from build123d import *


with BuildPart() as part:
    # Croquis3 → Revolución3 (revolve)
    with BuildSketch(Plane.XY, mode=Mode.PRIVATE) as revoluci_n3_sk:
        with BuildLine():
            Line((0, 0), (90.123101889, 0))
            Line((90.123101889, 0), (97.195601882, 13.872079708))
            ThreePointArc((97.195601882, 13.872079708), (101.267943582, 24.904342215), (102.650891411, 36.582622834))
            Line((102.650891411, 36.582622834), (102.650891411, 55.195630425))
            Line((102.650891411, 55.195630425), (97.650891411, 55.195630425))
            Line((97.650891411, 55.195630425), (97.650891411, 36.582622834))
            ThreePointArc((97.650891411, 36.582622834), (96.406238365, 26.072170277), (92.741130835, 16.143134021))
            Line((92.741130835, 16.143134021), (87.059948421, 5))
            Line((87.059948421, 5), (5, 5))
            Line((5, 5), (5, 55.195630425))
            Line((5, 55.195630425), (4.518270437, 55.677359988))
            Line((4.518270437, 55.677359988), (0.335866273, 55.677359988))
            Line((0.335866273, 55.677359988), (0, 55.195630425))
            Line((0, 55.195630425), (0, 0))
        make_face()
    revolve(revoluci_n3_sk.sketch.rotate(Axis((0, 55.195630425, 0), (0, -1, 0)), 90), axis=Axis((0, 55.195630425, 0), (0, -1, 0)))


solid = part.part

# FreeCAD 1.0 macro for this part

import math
import FreeCAD as App
import Part
import Sketcher

V = App.Vector
Q = App.Units.Quantity

doc = App.newDocument("Part")
body = doc.addObject("PartDesign::Body", "Body")

sketch1 = doc.addObject("Sketcher::SketchObject", "Sketch")
body.addObject(sketch1)
sketch1.AttachmentSupport = (doc.XY_Plane, [""])
sketch1.MapMode = "FlatFace"
sketch1.addGeometry([
    Part.LineSegment(V(0, 0, 0), V(90.1, 0, 0)),
    Part.LineSegment(V(90.1, 0, 0), V(97.2, 13.9, 0)),
    Part.ArcOfCircle(Part.Circle(V(52.7, 36.6, 0), V(0, 0, 1), 50), math.radians(-27), math.radians(0)),
    Part.LineSegment(V(102.7, 36.6, 0), V(102.7, 55.2, 0)),
    Part.LineSegment(V(102.7, 55.2, 0), V(97.7, 55.2, 0)),
    Part.LineSegment(V(97.7, 55.2, 0), V(97.7, 36.6, 0)),
    Part.ArcOfCircle(Part.Circle(V(52.7, 36.6, 0), V(0, 0, 1), 45), math.radians(-27), math.radians(0)),
    Part.LineSegment(V(92.7, 16.1, 0), V(87.1, 5, 0)),
    Part.LineSegment(V(87.1, 5, 0), V(5, 5, 0)),
    Part.LineSegment(V(5, 5, 0), V(5, 55.2, 0)),
    Part.LineSegment(V(5, 55.2, 0), V(4.5, 55.7, 0)),
    Part.LineSegment(V(4.5, 55.7, 0), V(0.3, 55.7, 0)),
    Part.LineSegment(V(0.3, 55.7, 0), V(0, 55.2, 0)),
    Part.LineSegment(V(0, 55.2, 0), V(0, 0, 0)),
], False)
sketch1.addConstraint([
    Sketcher.Constraint("Coincident", 0, 2, 1, 1),
    Sketcher.Constraint("Tangent", 1, 2, 2, 1),
    Sketcher.Constraint("Tangent", 2, 2, 3, 1),
    Sketcher.Constraint("Coincident", 3, 2, 4, 1),
    Sketcher.Constraint("Coincident", 4, 2, 5, 1),
    Sketcher.Constraint("Tangent", 5, 2, 6, 2),
    Sketcher.Constraint("Tangent", 6, 1, 7, 1),
    Sketcher.Constraint("Coincident", 7, 2, 8, 1),
    Sketcher.Constraint("Coincident", 8, 2, 9, 1),
    Sketcher.Constraint("Coincident", 9, 2, 10, 1),
    Sketcher.Constraint("Coincident", 10, 2, 11, 1),
    Sketcher.Constraint("Coincident", 11, 2, 12, 1),
    Sketcher.Constraint("Coincident", 12, 2, 13, 1),
    Sketcher.Constraint("Coincident", 13, 2, 0, 1),
    Sketcher.Constraint("Horizontal", 0),
    Sketcher.Constraint("Vertical", 3),
    Sketcher.Constraint("Horizontal", 4),
    Sketcher.Constraint("Vertical", 5),
    Sketcher.Constraint("Horizontal", 8),
    Sketcher.Constraint("Vertical", 9),
    Sketcher.Constraint("Horizontal", 11),
    Sketcher.Constraint("Vertical", 13),
    Sketcher.Constraint("Coincident", 13, 2, -1, 1),
    Sketcher.Constraint("Coincident", 6, 3, 2, 3),
    Sketcher.Constraint("Parallel", 1, 7),
    Sketcher.Constraint("Horizontal", 4, 2, 9, 2),
    Sketcher.Constraint("Horizontal", 9, 2, 12, 2),
    Sketcher.Constraint("Radius", 2, 50.0),
    Sketcher.Constraint("Radius", 6, 45.0),
    Sketcher.Constraint("Angle", 10, Q("135 deg")),
    Sketcher.Constraint("DistanceY", -1, 1, 7, 2, 5.0),
    Sketcher.Constraint("DistanceX", -1, 1, 8, 2, 5.0),
    Sketcher.Constraint("DistanceX", 0, 1, 0, 2, 90.123102),
    Sketcher.Constraint("DistanceX", 8, 2, 8, 1, 82.059948),
    Sketcher.Constraint("DistanceY", 9, 1, 9, 2, 50.19563),
    Sketcher.Constraint("DistanceX", -1, 1, 1, 2, 97.195602),
    Sketcher.Constraint("Distance", 10, 0.681268),
    Sketcher.Constraint("DistanceX", 11, 2, 11, 1, 4.182404),
])
revolution = doc.addObject("PartDesign::Revolution", "Revolution")
body.addObject(revolution)
revolution.Profile = sketch1
revolution.ReferenceAxis = (sketch1, ["V_Axis"])
revolution.Angle = 360

doc.recompute()
